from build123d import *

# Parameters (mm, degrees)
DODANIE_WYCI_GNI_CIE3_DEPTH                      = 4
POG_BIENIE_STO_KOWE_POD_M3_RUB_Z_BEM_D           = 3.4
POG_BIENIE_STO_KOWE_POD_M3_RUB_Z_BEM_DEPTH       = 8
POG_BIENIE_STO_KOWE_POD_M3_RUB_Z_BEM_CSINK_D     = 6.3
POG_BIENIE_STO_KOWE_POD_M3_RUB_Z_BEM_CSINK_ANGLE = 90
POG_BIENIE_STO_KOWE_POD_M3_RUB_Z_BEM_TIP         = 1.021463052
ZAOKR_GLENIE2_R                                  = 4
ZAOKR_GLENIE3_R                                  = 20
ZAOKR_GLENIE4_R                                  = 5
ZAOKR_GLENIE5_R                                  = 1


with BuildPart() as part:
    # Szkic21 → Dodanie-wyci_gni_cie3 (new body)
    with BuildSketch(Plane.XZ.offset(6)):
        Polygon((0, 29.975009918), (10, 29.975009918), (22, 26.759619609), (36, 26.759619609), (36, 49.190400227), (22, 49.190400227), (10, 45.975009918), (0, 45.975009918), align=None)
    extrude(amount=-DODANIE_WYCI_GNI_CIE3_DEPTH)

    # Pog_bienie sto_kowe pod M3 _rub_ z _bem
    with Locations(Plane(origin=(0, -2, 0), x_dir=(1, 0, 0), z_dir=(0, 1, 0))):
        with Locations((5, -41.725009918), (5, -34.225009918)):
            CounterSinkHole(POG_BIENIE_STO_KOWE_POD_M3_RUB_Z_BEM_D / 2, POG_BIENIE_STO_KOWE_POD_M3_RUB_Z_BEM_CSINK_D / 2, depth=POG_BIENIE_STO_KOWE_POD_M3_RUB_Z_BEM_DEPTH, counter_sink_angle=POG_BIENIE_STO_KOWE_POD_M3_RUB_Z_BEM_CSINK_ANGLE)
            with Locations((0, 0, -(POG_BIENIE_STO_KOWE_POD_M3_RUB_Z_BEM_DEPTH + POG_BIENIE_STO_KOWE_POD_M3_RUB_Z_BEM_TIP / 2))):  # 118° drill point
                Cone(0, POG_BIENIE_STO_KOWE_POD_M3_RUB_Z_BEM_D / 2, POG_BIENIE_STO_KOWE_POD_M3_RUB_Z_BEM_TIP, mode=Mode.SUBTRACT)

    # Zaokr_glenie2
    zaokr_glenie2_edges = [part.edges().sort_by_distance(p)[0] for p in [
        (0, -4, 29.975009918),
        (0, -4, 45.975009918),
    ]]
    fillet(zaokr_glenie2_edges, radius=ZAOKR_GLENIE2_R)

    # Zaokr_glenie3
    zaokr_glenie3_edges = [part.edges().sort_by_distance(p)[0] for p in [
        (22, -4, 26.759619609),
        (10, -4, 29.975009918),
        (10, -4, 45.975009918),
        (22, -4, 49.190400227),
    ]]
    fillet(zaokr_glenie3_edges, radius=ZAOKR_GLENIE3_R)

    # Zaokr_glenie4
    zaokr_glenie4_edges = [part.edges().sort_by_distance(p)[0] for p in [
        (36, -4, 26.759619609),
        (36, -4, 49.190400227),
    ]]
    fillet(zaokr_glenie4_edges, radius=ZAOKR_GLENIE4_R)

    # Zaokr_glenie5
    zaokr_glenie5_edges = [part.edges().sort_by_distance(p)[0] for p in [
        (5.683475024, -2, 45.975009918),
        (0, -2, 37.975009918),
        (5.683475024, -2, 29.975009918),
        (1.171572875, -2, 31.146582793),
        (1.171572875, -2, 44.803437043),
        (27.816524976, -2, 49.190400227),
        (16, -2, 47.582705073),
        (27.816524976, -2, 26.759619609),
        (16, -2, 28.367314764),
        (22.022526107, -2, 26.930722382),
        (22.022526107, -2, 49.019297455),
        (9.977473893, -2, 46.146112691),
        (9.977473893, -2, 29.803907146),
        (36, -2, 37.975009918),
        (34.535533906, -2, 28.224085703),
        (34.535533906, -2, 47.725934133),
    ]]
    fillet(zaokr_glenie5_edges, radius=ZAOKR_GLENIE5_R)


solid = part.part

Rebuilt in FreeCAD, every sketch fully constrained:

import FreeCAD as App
import Part
import Sketcher

V = App.Vector
Q = App.Units.Quantity


def edges_at(feature, points):
    """Names of the edges that pass closest to the given points."""
    edges = feature.Shape.Edges
    near = lambda p: min(range(len(edges)), key=lambda i: edges[i].distToShape(Part.Vertex(*p))[0])
    return sorted({f"Edge{near(p) + 1}" for p in points})

doc = App.newDocument("Part")
params = doc.addObject("Spreadsheet::Sheet", "Params")
for row, (alias, value) in enumerate([
    ("sketch1_width", "10 mm"),
    ("sketch1_width2", "14 mm"),
    ("sketch1_height", "16 mm"),
    ("pad1_length", "4 mm"),
    ("sketch2_diameter", "3.4 mm"),
    ("hole_diameter", "3.4 mm"),
    ("hole_depth", "8 mm"),
    ("hole_csink_diameter", "6.3 mm"),
    ("fillet_radius", "4 mm"),
    ("fillet2_radius", "20 mm"),
    ("fillet3_radius", "5 mm"),
    ("fillet4_radius", "1 mm"),
], start=1):
    params.set(f"A{row}", alias)
    params.set(f"B{row}", "=" + value)
    params.setAlias(f"B{row}", alias)

body = doc.addObject("PartDesign::Body", "Body")

# Sketch on XZ plane
sketch1 = body.newObject("Sketcher::SketchObject", "Sketch")
sketch1.AttachmentSupport = (doc.getObject("XZ_Plane"), [""])
sketch1.MapMode = "FlatFace"
sketch1.AttachmentOffset = App.Placement(V(0, 0, 6), App.Rotation())
sketch1.addGeometry([
    Part.LineSegment(V(0, 30, 0), V(10, 30, 0)),  # 0
    Part.LineSegment(V(10, 30, 0), V(22, 27, 0)),  # 1
    Part.LineSegment(V(22, 27, 0), V(36, 27, 0)),  # 2
    Part.LineSegment(V(36, 27, 0), V(36, 49, 0)),  # 3
    Part.LineSegment(V(36, 49, 0), V(22, 49, 0)),  # 4
    Part.LineSegment(V(22, 49, 0), V(10, 46, 0)),  # 5
    Part.LineSegment(V(10, 46, 0), V(0, 46, 0)),  # 6
    Part.LineSegment(V(0, 46, 0), V(0, 30, 0)),  # 7
], False)
sketch1.addConstraint([
    Sketcher.Constraint("Coincident", 0, 2, 1, 1),
    Sketcher.Constraint("Coincident", 1, 2, 2, 1),
    Sketcher.Constraint("Coincident", 2, 2, 3, 1),
    Sketcher.Constraint("Coincident", 3, 2, 4, 1),
    Sketcher.Constraint("Coincident", 4, 2, 5, 1),
    Sketcher.Constraint("Coincident", 5, 2, 6, 1),
    Sketcher.Constraint("Coincident", 6, 2, 7, 1),
    Sketcher.Constraint("Coincident", 7, 2, 0, 1),
    Sketcher.Constraint("Horizontal", 0),
    Sketcher.Constraint("Horizontal", 2),
    Sketcher.Constraint("Vertical", 3),
    Sketcher.Constraint("Horizontal", 4),
    Sketcher.Constraint("Horizontal", 6),
    Sketcher.Constraint("Vertical", 7),
    Sketcher.Constraint("PointOnObject", 6, 2, -2),
    Sketcher.Constraint("Vertical", 1, 2, 4, 2),
    Sketcher.Constraint("Vertical", 0, 2, 5, 2),
    Sketcher.Constraint("Equal", 1, 5),
    Sketcher.Constraint("DistanceX", 0, 1, 0, 2, 10.0),
    Sketcher.Constraint("DistanceX", 2, 1, 2, 2, 14.0),
    Sketcher.Constraint("DistanceY", 7, 2, 7, 1, 16.0),
    Sketcher.Constraint("Angle", 1, Q("-15 deg")),
    Sketcher.Constraint("DistanceX", -1, 1, 1, 2, 22.0),
    Sketcher.Constraint("DistanceY", -1, 1, 3, 2, 49.1904),
])
sketch1.setExpression("Constraints[18]", "Params.sketch1_width")
sketch1.setExpression("Constraints[19]", "Params.sketch1_width2")
sketch1.setExpression("Constraints[20]", "Params.sketch1_height")
pad1 = body.newObject("PartDesign::Pad", "Pad")
pad1.Profile = sketch1
pad1.setExpression("Length", "Params.pad1_length")
pad1.Reversed = True

# Sketch on XZ plane
sketch2 = body.newObject("Sketcher::SketchObject", "Sketch001")
sketch2.AttachmentSupport = (doc.getObject("XZ_Plane"), [""])
sketch2.MapMode = "FlatFace"
sketch2.AttachmentOffset = App.Placement(V(0, 0, 2), App.Rotation())
sketch2.addGeometry([
    Part.Circle(V(5, 41.7, 0), V(0, 0, 1), 1.7),
    Part.Circle(V(5, 34.2, 0), V(0, 0, 1), 1.7),
], False)
sketch2.addConstraint([
    Sketcher.Constraint("Equal", 0, 1),
    Sketcher.Constraint("Vertical", 0, 3, 1, 3),
    Sketcher.Constraint("Diameter", 0, 3.4),
    Sketcher.Constraint("DistanceX", -1, 1, 0, 3, 5.0),
    Sketcher.Constraint("DistanceY", 1, 3, 0, 3, 7.5),
    Sketcher.Constraint("DistanceY", -1, 1, 0, 3, 41.72501),
])
sketch2.setExpression("Constraints[2]", "Params.sketch2_diameter")
doc.recompute()
hole = body.newObject("PartDesign::Hole", "Hole")
hole.Profile = sketch2
hole.ThreadType = "None"
hole.setExpression("Diameter", "Params.hole_diameter")
hole.DepthType = "Dimension"
hole.setExpression("Depth", "Params.hole_depth")
hole.DrillPoint = "Angled"
hole.DrillPointAngle = 118
hole.HoleCutType = "Countersink"
hole.setExpression("HoleCutDiameter", "Params.hole_csink_diameter")
hole.HoleCutCountersinkAngle = 90
hole.Reversed = True
doc.recompute()

fillet = body.newObject("PartDesign::Fillet", "Fillet")
fillet.Base = (hole, edges_at(hole, [(0, -4, 29.975), (0, -4, 45.975)]))
fillet.setExpression("Radius", "Params.fillet_radius")
doc.recompute()

fillet2 = body.newObject("PartDesign::Fillet", "Fillet001")
fillet2.Base = (fillet, edges_at(fillet, [
    (22, -4, 26.76),
    (10, -4, 29.975),
    (10, -4, 45.975),
    (22, -4, 49.19),
]))
fillet2.setExpression("Radius", "Params.fillet2_radius")
doc.recompute()

fillet3 = body.newObject("PartDesign::Fillet", "Fillet002")
fillet3.Base = (fillet2, edges_at(fillet2, [(36, -4, 26.76), (36, -4, 49.19)]))
fillet3.setExpression("Radius", "Params.fillet3_radius")
doc.recompute()

fillet4 = body.newObject("PartDesign::Fillet", "Fillet003")
fillet4.Base = (fillet3, edges_at(fillet3, [
    (5.683, -2, 45.975),
    (0, -2, 37.975),
    (5.683, -2, 29.975),
    (1.172, -2, 31.147),
    (1.172, -2, 44.803),
    (27.817, -2, 49.19),
    (16, -2, 47.583),
    (27.817, -2, 26.76),
    (16, -2, 28.367),
    (22.023, -2, 26.931),
    (22.023, -2, 49.019),
    (9.977, -2, 46.146),
    (9.977, -2, 29.804),
    (36, -2, 37.975),
    (34.536, -2, 28.224),
    (34.536, -2, 47.726),
]))
fillet4.setExpression("Radius", "Params.fillet4_radius")

doc.recompute()
